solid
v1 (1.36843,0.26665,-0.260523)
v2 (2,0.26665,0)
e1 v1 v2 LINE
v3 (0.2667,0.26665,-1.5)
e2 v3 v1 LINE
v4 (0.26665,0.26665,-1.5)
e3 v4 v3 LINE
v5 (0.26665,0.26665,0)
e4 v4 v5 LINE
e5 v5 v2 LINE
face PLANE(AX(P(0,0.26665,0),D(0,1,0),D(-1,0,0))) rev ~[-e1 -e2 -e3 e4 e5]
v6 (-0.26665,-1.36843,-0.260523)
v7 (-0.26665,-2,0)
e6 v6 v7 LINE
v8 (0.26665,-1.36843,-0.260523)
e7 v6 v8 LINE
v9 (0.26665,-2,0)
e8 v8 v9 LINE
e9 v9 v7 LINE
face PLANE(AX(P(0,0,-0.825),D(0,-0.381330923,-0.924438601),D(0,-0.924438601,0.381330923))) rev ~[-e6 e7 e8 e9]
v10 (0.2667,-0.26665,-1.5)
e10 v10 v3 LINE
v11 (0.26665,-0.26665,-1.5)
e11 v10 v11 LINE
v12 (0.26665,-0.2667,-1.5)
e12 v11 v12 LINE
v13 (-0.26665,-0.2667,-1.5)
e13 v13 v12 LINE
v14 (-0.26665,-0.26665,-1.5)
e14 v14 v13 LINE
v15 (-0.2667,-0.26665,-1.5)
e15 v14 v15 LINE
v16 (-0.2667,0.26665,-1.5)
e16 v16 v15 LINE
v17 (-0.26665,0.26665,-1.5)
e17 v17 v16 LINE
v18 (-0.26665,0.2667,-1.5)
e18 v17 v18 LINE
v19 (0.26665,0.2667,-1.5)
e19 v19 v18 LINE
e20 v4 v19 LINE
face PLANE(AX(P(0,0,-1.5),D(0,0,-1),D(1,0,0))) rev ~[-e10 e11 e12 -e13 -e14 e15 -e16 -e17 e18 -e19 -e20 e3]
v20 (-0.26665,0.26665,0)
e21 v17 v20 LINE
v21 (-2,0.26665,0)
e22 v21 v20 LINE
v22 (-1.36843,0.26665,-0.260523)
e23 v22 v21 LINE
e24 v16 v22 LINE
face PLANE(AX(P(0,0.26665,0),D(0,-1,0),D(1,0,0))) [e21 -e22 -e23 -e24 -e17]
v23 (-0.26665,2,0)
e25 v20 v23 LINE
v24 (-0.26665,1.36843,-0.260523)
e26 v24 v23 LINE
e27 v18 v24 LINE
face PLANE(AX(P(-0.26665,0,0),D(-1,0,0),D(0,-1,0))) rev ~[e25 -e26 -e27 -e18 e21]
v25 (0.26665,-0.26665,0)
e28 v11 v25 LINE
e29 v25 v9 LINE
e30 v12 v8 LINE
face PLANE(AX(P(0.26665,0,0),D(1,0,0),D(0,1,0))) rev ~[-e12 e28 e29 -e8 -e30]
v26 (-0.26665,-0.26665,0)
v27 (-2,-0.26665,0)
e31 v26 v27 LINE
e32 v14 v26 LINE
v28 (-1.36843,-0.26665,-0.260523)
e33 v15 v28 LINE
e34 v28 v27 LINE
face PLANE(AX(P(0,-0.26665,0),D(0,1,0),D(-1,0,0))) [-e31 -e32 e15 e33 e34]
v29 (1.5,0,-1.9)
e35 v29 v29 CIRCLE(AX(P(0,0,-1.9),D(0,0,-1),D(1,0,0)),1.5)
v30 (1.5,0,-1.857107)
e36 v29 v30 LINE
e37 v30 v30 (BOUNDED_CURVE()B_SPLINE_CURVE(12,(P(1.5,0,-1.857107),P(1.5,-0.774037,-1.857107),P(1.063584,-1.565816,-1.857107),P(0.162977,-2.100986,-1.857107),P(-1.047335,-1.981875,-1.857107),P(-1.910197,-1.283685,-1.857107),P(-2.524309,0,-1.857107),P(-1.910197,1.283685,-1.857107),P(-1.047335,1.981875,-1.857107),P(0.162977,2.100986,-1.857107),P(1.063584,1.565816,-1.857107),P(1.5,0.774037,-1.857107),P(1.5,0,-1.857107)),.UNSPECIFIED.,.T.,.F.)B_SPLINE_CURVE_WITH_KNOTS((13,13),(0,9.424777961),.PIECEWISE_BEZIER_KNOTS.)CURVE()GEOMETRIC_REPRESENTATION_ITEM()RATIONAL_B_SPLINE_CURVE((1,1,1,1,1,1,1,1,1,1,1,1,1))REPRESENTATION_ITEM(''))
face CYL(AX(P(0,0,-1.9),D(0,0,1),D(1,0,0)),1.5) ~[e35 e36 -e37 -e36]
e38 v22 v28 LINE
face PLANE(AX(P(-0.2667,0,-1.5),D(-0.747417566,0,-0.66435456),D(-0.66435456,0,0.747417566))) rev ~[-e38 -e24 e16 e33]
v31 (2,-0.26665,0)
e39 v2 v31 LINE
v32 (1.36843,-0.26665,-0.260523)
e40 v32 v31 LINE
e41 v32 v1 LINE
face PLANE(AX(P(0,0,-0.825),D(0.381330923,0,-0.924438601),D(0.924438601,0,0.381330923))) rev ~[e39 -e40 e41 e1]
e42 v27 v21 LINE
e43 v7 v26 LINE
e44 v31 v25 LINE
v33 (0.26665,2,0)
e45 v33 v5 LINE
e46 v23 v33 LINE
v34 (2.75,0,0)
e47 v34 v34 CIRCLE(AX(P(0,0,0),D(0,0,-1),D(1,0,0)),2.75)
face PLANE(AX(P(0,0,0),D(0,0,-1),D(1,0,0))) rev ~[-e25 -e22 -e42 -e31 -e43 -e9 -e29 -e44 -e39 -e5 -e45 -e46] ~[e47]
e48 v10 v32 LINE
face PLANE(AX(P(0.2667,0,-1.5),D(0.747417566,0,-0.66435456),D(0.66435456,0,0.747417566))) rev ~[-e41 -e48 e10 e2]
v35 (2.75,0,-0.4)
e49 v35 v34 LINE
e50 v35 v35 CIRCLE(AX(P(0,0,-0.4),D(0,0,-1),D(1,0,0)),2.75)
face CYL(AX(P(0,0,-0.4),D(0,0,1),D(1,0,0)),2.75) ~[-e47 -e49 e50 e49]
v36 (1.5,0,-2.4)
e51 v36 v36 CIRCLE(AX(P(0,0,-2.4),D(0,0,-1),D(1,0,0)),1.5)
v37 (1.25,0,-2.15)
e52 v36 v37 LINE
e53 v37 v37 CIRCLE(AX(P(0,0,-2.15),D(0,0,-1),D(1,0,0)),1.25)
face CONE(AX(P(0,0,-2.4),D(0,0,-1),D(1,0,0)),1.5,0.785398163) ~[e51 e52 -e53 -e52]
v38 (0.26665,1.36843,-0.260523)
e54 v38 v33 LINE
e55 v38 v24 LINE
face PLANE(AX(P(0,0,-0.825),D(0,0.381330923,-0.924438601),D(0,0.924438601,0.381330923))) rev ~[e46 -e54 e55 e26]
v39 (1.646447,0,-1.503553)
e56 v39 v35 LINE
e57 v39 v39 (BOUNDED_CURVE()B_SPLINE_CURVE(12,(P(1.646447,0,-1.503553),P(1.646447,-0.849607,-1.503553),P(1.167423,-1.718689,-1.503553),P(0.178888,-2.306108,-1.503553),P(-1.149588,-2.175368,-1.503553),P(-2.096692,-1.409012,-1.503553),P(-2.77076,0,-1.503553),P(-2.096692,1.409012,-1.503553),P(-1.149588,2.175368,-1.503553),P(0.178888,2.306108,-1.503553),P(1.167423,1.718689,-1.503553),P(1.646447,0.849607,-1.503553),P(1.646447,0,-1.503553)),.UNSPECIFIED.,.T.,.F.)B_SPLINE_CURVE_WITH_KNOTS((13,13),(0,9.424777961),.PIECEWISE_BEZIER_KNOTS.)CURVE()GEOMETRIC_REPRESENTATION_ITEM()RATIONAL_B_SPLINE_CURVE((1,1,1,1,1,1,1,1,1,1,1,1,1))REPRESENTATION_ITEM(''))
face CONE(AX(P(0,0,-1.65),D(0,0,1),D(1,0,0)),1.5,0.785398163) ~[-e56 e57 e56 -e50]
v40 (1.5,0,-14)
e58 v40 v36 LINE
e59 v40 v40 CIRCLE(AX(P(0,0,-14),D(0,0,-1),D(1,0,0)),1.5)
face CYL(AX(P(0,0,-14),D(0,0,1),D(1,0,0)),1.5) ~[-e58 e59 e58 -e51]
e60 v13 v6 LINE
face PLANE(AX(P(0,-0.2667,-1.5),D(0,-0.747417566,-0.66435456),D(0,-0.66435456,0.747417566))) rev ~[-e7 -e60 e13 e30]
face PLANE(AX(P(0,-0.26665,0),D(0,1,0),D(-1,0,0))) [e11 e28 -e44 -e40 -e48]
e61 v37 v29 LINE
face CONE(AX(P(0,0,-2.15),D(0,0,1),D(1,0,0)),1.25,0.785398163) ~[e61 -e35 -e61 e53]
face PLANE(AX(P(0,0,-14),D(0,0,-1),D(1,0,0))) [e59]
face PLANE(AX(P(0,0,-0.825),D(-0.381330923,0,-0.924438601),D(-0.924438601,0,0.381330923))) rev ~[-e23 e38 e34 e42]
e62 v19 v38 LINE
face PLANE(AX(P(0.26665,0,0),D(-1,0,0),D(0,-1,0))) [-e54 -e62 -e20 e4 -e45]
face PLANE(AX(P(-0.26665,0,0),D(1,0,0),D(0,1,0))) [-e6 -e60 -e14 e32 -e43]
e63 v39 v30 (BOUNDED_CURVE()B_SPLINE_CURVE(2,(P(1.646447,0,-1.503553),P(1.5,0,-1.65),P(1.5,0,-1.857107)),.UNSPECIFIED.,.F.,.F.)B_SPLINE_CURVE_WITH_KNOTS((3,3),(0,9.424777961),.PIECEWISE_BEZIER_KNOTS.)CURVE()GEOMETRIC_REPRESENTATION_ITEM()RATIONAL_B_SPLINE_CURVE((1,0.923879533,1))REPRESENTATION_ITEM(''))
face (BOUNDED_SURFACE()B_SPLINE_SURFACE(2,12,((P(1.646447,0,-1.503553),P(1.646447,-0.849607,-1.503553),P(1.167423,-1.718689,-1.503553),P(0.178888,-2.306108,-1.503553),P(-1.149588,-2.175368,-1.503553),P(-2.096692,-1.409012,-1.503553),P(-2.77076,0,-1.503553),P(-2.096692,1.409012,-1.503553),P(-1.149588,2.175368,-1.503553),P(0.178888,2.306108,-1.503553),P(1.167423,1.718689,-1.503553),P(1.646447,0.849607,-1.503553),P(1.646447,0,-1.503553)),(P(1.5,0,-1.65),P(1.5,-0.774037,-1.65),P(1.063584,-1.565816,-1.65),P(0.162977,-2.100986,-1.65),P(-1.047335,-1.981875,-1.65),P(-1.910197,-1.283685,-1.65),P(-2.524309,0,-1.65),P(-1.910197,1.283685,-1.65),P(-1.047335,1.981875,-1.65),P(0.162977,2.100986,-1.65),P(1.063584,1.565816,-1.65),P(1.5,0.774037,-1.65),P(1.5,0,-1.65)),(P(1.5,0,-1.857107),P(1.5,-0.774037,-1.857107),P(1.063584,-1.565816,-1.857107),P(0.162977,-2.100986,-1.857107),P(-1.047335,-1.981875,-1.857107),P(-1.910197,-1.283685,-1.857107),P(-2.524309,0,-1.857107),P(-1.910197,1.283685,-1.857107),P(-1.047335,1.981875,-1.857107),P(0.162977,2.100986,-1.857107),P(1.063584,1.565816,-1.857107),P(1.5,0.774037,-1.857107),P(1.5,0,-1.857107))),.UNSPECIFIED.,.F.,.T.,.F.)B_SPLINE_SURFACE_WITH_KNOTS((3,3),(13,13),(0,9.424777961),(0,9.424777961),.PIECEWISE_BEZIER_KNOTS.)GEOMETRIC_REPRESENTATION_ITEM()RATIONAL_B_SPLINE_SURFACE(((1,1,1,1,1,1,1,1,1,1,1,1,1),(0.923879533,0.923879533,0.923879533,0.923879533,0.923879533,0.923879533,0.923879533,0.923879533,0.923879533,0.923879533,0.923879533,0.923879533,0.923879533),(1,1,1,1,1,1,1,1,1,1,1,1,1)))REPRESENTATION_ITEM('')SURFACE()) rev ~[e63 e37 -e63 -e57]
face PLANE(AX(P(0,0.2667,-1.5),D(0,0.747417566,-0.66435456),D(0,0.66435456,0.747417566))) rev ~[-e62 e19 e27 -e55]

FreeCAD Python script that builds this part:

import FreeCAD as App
import Part
import Sketcher


def edges_at(feature, points):
    """Names of the edges that pass closest to the given points."""
    edges = feature.Shape.Edges
    near = lambda p: min(range(len(edges)), key=lambda i: edges[i].distToShape(Part.Vertex(*p))[0])
    return sorted({f"Edge{near(p) + 1}" for p in points})

doc = App.newDocument("Part")
body = doc.addObject("PartDesign::Body", "Body")

sketch1 = doc.addObject("Sketcher::SketchObject", "Sketch")
body.addObject(sketch1)
sketch1.AttachmentSupport = (doc.XZ_Plane, [""])
sketch1.MapMode = "FlatFace"
sketch1.addGeometry([
    Part.LineSegment(App.Vector(0, 0, 0), App.Vector(2.75, 0, 0)),
    Part.LineSegment(App.Vector(2.75, 0, 0), App.Vector(2.75, -0.4, 0)),
    Part.LineSegment(App.Vector(2.75, -0.4, 0), App.Vector(1.5, -1.65, 0)),
    Part.LineSegment(App.Vector(1.5, -1.65, 0), App.Vector(1.5, -1.9, 0)),
    Part.LineSegment(App.Vector(1.5, -1.9, 0), App.Vector(1.25, -2.15, 0)),
    Part.LineSegment(App.Vector(1.25, -2.15, 0), App.Vector(1.5, -2.4, 0)),
    Part.LineSegment(App.Vector(1.5, -2.4, 0), App.Vector(1.5, -14, 0)),
    Part.LineSegment(App.Vector(1.5, -14, 0), App.Vector(0, -14, 0)),
    Part.LineSegment(App.Vector(0, -14, 0), App.Vector(0, 0, 0)),
], False)
sketch1.addConstraint([
    Sketcher.Constraint("Coincident", 0, 2, 1, 1),
    Sketcher.Constraint("Coincident", 1, 2, 2, 1),
    Sketcher.Constraint("Coincident", 2, 2, 3, 1),
    Sketcher.Constraint("Coincident", 3, 2, 4, 1),
    Sketcher.Constraint("Coincident", 4, 2, 5, 1),
    Sketcher.Constraint("Coincident", 5, 2, 6, 1),
    Sketcher.Constraint("Coincident", 6, 2, 7, 1),
    Sketcher.Constraint("Coincident", 7, 2, 8, 1),
    Sketcher.Constraint("Coincident", 8, 2, 0, 1),
    Sketcher.Constraint("Horizontal", 0),
    Sketcher.Constraint("Vertical", 1),
    Sketcher.Constraint("Vertical", 3),
    Sketcher.Constraint("Vertical", 6),
    Sketcher.Constraint("Horizontal", 7),
    Sketcher.Constraint("Vertical", 8),
    Sketcher.Constraint("Coincident", 8, 2, -1, 1),
    Sketcher.Constraint("Parallel", 2, 4),
    Sketcher.Constraint("Perpendicular", 4, 5),
    Sketcher.Constraint("Vertical", 3, 2, 5, 2),
    Sketcher.Constraint("Equal", 4, 5),
    Sketcher.Constraint("DistanceY", 8, 1, 8, 2, 14.0),
    Sketcher.Constraint("DistanceX", 7, 2, 7, 1, 1.5),
    Sketcher.Constraint("DistanceX", 0, 1, 0, 2, 2.75),
    Sketcher.Constraint("DistanceY", 3, 2, 3, 1, 0.25),
    Sketcher.Constraint("DistanceX", 4, 2, 1, 2, 1.5),
    Sketcher.Constraint("DistanceY", 2, 2, -1, 1, 1.65),
])
revolution = doc.addObject("PartDesign::Revolution", "Revolution")
body.addObject(revolution)
revolution.Profile = sketch1
revolution.ReferenceAxis = (sketch1, ["V_Axis"])
revolution.Angle = 360

sketch2 = doc.addObject("Sketcher::SketchObject", "Sketch001")
body.addObject(sketch2)
sketch2.AttachmentSupport = (doc.XZ_Plane, [""])
sketch2.MapMode = "FlatFace"
sketch2.addGeometry([
    Part.LineSegment(App.Vector(0, 0, 0), App.Vector(1.6, 0, 0)),
    Part.LineSegment(App.Vector(1.6, 0, 0), App.Vector(0.27, -1.5, 0)),
    Part.LineSegment(App.Vector(0.27, -1.5, 0), App.Vector(0, -1.5, 0)),
    Part.LineSegment(App.Vector(0, -1.5, 0), App.Vector(0, 0, 0)),
], False)
sketch2.addConstraint([
    Sketcher.Constraint("Coincident", 0, 2, 1, 1),
    Sketcher.Constraint("Coincident", 1, 2, 2, 1),
    Sketcher.Constraint("Coincident", 2, 2, 3, 1),
    Sketcher.Constraint("Coincident", 3, 2, 0, 1),
    Sketcher.Constraint("Horizontal", 0),
    Sketcher.Constraint("Horizontal", 2),
    Sketcher.Constraint("Vertical", 3),
    Sketcher.Constraint("Coincident", 3, 2, -1, 1),
    Sketcher.Constraint("DistanceX", 0, 1, 0, 2, 1.6),
    Sketcher.Constraint("DistanceY", 3, 1, 3, 2, 1.5),
    Sketcher.Constraint("DistanceX", 2, 2, 2, 1, 0.2667),
])
pocket1 = doc.addObject("PartDesign::Pocket", "Pocket")
body.addObject(pocket1)
pocket1.Profile = sketch2
pocket1.Length = 0.5333
pocket1.Midplane = True
doc.recompute()

polarpattern = doc.addObject("PartDesign::PolarPattern", "PolarPattern")
body.addObject(polarpattern)
polarpattern.Originals = [pocket1]
polarpattern.Axis = (doc.Z_Axis, [""])
polarpattern.Angle = 360
polarpattern.Occurrences = 4
body.Tip = polarpattern

sketch3 = doc.addObject("Sketcher::SketchObject", "Sketch002")
body.addObject(sketch3)
sketch3.AttachmentSupport = (doc.XZ_Plane, [""])
sketch3.MapMode = "FlatFace"
sketch3.addGeometry([
    Part.LineSegment(App.Vector(2, 0, 0), App.Vector(0, -0.8, 0)),
    Part.LineSegment(App.Vector(0, -0.8, 0), App.Vector(0, 0, 0)),
    Part.LineSegment(App.Vector(0, 0, 0), App.Vector(2, 0, 0)),
], False)
sketch3.addConstraint([
    Sketcher.Constraint("Coincident", 0, 2, 1, 1),
    Sketcher.Constraint("Coincident", 1, 2, 2, 1),
    Sketcher.Constraint("Coincident", 2, 2, 0, 1),
    Sketcher.Constraint("Vertical", 1),
    Sketcher.Constraint("Horizontal", 2),
    Sketcher.Constraint("Coincident", 1, 2, -1, 1),
    Sketcher.Constraint("DistanceX", 2, 1, 2, 2, 2.0),
    Sketcher.Constraint("DistanceY", 1, 1, 1, 2, 0.825),
])
pocket2 = doc.addObject("PartDesign::Pocket", "Pocket001")
body.addObject(pocket2)
pocket2.Profile = sketch3
pocket2.Length = 0.5333
pocket2.Midplane = True
doc.recompute()

polarpattern2 = doc.addObject("PartDesign::PolarPattern", "PolarPattern001")
body.addObject(polarpattern2)
polarpattern2.Originals = [pocket2]
polarpattern2.Axis = (doc.Z_Axis, [""])
polarpattern2.Angle = 360
polarpattern2.Occurrences = 4
body.Tip = polarpattern2
doc.recompute()

fillet = doc.addObject("PartDesign::Fillet", "Fillet")
body.addObject(fillet)
fillet.Base = (polarpattern2, edges_at(polarpattern2, [(-1.5, 0, -1.65)]))
fillet.Radius = 0.5

doc.recompute()
